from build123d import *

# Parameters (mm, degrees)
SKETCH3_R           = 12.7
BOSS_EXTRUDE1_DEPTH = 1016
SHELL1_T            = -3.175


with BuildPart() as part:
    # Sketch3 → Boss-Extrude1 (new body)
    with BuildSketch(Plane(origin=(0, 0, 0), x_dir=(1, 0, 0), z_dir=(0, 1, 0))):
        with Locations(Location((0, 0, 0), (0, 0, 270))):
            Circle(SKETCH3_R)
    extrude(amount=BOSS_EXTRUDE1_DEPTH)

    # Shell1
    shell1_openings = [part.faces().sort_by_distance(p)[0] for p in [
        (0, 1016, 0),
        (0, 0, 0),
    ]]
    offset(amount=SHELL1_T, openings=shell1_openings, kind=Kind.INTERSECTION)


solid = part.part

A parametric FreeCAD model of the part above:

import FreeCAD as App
import Part
import Sketcher
from FreeCAD import Vector
Q = App.Units.Quantity


def faces_at(feature, points):
    """Names of the faces that lie closest to the given points."""
    faces = feature.Shape.Faces
    near = lambda p: min(range(len(faces)), key=lambda i: faces[i].distToShape(Part.Vertex(*p))[0])
    return sorted({f"Face{near(p) + 1}" for p in points})

doc = App.newDocument("Part")
body = doc.addObject("PartDesign::Body", "Body")

# Sketch on XZ plane
sketch1 = body.newObject("Sketcher::SketchObject", "Sketch")
sketch1.AttachmentSupport = (doc.getObject("XZ_Plane"), [""])
sketch1.MapMode = "FlatFace"
sketch1.addGeometry(Part.Circle(Vector(0, 0, 0), Vector(0, 0, 1), 12.7), False)
sketch1.addConstraint([
    Sketcher.Constraint("Coincident", 0, 3, -1, 1),
    Sketcher.Constraint("Diameter", 0, Q("1 in")),
])
pad1 = body.newObject("PartDesign::Pad", "Pad")
pad1.Profile = sketch1
pad1.Length = Q("40 in")
pad1.Reversed = True
doc.recompute()

thickness = body.newObject("PartDesign::Thickness", "Thickness")
thickness.Base = (pad1, faces_at(pad1, [(0, 1016, 0), (0, 0, 0)]))
thickness.Value = Q("0.125 in")
thickness.Reversed = True
thickness.Join = "Intersection"

doc.recompute()
